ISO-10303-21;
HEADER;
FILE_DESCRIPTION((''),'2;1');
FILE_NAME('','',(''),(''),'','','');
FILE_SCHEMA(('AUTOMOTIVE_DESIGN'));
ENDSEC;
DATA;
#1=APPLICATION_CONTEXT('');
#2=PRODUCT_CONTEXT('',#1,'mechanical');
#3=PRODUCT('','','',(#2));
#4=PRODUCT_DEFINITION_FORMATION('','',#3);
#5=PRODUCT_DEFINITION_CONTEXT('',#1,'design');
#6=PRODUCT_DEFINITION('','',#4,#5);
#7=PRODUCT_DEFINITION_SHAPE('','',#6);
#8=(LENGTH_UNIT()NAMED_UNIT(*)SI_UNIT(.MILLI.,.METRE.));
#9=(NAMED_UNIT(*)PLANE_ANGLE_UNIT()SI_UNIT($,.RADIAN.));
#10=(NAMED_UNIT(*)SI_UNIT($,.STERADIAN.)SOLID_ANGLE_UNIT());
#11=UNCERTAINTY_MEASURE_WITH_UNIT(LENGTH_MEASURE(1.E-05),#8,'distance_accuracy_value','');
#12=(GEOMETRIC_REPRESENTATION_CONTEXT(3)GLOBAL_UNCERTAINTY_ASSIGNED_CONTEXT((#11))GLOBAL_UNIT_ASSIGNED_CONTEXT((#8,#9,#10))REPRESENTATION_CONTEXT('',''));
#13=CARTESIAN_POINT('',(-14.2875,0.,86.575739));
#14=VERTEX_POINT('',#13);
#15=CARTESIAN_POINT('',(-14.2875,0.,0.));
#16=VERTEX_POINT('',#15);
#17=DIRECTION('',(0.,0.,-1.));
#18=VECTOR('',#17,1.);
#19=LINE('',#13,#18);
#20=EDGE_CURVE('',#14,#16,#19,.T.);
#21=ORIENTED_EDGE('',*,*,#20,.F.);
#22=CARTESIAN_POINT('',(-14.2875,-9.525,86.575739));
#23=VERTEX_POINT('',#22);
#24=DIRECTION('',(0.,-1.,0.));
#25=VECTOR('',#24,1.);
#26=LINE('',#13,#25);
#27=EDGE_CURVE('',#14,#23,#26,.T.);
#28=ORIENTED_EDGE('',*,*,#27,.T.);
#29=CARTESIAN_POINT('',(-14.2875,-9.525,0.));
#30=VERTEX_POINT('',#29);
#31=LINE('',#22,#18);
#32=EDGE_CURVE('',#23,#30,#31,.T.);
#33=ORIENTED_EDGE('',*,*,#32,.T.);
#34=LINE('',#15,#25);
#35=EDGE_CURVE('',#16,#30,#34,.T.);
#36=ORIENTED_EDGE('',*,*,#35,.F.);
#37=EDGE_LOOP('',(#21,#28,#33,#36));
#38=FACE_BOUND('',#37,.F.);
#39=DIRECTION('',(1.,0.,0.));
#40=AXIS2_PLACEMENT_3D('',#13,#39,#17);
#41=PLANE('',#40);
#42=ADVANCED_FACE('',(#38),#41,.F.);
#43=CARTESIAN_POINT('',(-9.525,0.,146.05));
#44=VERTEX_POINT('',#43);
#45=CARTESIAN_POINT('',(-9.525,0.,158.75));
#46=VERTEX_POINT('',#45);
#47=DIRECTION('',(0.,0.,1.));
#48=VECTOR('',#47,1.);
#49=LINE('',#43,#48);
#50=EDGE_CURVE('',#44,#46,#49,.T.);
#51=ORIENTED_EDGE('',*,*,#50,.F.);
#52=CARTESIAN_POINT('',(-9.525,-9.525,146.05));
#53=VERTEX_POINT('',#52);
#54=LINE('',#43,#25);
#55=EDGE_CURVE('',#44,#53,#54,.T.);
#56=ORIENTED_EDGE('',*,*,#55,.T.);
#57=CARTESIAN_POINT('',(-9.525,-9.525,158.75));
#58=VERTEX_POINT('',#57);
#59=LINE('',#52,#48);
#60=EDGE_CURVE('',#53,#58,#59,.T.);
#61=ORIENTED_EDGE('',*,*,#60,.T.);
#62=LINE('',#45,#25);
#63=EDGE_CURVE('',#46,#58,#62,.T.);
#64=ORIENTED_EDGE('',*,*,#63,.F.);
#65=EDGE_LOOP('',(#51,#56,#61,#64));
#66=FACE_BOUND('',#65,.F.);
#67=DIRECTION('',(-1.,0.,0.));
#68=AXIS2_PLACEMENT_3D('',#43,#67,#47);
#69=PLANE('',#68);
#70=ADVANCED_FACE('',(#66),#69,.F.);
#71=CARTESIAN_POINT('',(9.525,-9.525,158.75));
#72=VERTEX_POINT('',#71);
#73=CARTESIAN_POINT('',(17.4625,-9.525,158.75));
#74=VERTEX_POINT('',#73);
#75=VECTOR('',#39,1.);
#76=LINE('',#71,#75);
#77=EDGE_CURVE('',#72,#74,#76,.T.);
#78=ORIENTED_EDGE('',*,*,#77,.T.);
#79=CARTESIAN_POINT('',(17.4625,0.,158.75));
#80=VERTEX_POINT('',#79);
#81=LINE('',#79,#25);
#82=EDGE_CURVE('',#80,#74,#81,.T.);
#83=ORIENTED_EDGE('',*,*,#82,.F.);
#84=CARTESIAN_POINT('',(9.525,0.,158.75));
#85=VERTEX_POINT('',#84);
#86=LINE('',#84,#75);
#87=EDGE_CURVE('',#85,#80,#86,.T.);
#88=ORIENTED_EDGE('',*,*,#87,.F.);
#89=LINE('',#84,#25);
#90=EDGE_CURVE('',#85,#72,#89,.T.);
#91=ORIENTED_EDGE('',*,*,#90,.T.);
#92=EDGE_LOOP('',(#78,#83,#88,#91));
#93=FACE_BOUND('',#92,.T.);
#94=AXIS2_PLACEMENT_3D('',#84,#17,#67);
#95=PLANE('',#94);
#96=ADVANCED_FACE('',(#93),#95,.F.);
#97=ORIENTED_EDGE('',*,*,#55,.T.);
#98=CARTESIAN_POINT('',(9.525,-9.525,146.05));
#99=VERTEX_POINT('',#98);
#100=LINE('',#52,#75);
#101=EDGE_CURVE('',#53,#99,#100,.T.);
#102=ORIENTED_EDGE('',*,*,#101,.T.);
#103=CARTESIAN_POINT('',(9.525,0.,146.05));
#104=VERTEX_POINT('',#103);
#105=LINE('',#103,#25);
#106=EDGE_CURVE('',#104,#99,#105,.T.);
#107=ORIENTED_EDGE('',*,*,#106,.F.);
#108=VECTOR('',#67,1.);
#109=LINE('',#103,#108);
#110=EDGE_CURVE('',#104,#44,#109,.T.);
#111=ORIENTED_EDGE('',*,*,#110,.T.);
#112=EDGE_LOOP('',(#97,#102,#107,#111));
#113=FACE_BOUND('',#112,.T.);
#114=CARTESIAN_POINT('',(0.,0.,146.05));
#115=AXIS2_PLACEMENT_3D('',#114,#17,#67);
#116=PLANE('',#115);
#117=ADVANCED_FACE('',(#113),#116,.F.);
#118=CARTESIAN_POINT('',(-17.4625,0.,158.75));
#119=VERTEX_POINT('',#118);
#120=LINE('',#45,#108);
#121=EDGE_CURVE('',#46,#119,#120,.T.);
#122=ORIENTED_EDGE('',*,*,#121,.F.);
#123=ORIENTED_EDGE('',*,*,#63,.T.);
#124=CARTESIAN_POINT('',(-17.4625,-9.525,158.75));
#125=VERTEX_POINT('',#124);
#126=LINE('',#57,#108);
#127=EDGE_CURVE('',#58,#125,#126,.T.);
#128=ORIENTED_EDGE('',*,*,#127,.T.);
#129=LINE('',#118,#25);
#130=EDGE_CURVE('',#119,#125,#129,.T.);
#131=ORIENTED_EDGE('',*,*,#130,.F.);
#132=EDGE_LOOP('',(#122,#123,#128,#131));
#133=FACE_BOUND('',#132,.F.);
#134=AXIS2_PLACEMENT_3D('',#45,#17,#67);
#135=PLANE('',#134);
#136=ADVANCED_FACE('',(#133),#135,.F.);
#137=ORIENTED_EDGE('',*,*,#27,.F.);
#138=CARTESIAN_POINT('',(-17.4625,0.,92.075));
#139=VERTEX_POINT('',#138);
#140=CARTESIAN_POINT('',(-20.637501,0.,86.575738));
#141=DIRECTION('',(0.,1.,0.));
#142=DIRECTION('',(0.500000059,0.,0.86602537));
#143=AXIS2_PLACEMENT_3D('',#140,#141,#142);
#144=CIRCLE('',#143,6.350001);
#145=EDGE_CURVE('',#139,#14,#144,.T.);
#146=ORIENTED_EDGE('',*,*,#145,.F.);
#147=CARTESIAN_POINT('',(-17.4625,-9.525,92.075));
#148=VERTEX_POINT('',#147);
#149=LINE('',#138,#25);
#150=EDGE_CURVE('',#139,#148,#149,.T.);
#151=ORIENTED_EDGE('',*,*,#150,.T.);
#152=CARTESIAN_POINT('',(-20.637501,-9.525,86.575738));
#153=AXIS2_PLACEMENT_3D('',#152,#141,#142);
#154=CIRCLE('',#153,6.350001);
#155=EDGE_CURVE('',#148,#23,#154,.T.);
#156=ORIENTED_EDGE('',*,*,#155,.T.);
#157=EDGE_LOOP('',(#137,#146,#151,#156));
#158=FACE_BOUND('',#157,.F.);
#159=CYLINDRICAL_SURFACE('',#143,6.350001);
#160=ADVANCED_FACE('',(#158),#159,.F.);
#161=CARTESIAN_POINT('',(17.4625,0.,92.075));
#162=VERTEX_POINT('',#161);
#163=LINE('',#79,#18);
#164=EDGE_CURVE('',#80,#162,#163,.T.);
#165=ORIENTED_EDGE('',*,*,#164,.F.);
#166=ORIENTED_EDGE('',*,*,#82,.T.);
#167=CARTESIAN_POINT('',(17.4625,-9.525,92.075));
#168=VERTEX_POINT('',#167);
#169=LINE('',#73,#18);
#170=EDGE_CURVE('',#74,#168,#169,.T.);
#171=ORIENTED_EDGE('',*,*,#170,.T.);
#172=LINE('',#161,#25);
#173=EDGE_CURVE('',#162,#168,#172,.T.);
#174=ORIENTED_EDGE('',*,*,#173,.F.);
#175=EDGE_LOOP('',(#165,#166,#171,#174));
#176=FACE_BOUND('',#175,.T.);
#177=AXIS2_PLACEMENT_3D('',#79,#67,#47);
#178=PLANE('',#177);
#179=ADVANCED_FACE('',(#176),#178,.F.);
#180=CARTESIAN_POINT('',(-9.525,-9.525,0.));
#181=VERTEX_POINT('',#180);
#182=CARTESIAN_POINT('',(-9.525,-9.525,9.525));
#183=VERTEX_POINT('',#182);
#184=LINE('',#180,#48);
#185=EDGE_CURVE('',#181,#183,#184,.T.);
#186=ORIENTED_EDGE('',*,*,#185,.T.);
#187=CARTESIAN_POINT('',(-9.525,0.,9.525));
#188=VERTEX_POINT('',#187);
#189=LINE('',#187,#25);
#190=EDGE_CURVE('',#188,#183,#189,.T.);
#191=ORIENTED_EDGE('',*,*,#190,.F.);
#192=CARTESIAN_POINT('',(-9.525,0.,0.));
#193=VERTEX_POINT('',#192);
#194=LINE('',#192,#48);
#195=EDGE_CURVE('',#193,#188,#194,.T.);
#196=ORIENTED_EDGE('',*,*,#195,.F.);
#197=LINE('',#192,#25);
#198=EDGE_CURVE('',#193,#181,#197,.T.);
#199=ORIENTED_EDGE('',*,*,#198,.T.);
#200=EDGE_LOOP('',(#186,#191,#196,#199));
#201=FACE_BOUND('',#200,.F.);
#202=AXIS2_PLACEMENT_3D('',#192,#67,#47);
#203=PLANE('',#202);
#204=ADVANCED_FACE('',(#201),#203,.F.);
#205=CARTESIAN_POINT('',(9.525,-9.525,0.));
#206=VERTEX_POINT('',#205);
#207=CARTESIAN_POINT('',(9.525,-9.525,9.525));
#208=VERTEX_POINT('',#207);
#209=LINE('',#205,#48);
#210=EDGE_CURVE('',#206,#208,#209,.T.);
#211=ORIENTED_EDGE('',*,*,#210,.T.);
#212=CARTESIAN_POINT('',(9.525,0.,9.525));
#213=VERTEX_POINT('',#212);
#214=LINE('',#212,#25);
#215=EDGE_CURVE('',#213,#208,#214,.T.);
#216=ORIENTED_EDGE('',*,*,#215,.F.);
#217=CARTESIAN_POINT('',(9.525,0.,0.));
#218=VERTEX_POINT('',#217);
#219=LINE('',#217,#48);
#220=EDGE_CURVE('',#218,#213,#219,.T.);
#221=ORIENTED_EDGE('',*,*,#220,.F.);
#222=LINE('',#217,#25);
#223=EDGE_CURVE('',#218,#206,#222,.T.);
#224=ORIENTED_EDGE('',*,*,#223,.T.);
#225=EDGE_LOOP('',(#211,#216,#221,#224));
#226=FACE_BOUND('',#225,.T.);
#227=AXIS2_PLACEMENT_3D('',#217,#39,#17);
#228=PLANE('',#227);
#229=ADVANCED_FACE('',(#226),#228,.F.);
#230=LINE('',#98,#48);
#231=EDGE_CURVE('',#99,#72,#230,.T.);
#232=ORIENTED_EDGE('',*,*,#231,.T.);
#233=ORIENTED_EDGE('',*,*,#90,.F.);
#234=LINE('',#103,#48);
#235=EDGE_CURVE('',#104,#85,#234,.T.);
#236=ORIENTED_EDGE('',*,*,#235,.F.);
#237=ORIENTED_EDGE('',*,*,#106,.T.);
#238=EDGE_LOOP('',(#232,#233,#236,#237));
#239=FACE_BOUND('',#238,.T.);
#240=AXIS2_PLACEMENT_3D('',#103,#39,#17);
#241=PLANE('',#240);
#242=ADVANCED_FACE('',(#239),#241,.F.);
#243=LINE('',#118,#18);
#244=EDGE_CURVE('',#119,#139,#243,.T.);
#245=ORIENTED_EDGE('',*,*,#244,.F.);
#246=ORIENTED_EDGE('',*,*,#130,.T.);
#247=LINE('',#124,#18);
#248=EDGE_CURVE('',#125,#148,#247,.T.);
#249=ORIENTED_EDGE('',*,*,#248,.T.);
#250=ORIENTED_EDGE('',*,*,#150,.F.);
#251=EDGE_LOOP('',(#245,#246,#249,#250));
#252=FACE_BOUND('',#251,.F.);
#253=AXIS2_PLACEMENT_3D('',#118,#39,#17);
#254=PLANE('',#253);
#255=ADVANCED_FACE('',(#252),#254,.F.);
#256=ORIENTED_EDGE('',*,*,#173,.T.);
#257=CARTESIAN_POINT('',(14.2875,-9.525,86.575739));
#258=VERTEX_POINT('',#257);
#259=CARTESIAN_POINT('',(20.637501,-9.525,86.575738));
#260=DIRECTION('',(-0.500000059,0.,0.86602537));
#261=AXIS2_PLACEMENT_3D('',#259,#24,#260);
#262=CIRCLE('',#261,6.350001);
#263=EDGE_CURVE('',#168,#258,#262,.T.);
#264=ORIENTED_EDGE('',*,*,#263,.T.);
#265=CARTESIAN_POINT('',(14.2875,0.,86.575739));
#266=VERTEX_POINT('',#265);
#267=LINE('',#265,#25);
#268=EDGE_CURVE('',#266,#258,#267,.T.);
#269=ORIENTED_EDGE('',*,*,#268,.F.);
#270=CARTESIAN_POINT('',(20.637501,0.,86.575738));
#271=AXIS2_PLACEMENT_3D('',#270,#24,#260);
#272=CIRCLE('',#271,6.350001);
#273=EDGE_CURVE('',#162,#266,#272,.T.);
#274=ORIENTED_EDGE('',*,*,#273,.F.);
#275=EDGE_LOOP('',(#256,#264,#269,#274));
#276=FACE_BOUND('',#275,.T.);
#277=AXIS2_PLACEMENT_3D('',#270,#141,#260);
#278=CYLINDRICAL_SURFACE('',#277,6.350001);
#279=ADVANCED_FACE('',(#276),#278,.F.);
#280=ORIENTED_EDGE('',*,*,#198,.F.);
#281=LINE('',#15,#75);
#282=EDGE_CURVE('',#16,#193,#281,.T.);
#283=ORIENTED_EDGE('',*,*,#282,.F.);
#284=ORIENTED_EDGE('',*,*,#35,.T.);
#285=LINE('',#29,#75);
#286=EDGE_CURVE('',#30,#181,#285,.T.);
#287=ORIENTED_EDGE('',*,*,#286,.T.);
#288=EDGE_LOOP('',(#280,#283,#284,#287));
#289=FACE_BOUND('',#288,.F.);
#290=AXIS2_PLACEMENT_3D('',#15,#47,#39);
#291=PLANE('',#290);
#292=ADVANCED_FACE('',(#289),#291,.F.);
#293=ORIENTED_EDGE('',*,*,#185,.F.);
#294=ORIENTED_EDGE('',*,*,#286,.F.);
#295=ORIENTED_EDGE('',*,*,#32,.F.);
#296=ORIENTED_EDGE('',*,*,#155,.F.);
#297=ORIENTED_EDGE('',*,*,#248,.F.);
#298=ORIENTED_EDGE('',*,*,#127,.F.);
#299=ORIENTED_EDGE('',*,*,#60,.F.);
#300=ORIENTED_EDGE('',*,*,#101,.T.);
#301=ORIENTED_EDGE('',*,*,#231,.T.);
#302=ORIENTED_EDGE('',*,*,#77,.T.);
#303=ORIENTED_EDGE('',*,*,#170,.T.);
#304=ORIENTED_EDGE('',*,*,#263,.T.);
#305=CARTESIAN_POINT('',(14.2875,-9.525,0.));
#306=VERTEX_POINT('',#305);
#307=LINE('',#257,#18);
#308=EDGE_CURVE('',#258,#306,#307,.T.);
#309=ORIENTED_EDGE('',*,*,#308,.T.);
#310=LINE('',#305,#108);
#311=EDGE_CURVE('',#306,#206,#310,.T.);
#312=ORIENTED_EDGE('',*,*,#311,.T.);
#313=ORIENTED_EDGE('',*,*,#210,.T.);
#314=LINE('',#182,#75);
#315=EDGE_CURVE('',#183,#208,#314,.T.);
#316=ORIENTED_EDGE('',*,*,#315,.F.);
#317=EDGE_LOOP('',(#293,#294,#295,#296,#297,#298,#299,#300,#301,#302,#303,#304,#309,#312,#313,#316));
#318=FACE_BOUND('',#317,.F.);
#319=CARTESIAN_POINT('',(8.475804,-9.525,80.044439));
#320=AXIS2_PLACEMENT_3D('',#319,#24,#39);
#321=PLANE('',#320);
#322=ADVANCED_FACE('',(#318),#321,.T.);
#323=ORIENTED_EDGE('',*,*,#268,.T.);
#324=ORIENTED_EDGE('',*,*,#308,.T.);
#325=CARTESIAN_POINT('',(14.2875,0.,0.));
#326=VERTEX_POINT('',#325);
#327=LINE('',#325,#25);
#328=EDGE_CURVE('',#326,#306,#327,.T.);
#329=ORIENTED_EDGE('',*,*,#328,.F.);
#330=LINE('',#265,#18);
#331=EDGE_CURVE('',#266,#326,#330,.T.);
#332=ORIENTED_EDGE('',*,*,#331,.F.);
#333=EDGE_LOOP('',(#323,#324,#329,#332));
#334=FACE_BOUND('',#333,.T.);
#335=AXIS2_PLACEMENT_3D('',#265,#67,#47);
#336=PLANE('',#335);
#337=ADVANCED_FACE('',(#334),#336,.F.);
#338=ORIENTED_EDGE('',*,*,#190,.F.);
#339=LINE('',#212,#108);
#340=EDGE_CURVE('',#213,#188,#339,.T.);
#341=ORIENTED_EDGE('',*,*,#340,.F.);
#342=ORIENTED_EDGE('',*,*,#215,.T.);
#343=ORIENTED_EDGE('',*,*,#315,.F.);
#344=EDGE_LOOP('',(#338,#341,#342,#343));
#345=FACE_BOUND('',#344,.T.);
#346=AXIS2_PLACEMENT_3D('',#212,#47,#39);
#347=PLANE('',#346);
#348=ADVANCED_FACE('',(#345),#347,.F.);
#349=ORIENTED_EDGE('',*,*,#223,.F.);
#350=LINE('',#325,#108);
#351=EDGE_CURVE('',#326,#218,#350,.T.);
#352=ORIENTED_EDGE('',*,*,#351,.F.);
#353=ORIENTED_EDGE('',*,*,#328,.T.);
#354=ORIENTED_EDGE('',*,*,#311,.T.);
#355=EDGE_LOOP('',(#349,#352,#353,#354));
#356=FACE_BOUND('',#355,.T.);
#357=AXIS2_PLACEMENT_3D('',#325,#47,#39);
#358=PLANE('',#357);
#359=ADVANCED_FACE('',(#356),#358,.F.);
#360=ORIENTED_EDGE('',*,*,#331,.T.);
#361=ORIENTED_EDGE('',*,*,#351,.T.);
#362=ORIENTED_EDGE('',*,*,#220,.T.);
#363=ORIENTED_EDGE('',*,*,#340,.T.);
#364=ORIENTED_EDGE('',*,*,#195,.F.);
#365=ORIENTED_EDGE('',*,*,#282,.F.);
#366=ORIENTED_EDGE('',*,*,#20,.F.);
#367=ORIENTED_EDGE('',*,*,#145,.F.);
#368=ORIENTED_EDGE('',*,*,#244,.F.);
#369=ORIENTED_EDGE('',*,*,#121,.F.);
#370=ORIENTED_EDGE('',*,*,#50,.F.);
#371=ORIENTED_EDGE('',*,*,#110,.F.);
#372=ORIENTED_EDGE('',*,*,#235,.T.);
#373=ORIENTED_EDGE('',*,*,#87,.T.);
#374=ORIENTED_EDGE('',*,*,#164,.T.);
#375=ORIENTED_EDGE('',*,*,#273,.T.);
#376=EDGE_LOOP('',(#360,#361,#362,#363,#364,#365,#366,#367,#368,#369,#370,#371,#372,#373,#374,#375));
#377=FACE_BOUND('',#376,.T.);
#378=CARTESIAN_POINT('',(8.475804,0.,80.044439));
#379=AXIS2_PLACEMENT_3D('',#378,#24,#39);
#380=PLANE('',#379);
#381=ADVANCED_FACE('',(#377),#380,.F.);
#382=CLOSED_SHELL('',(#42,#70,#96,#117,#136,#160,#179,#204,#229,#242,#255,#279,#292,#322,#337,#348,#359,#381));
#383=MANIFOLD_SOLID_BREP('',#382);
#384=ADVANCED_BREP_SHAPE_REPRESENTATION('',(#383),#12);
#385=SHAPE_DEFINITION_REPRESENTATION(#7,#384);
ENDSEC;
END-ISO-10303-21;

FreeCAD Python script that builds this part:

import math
import FreeCAD as App
import Part
import Sketcher

V = App.Vector
Q = App.Units.Quantity

doc = App.newDocument("Part")
params = doc.addObject("Spreadsheet::Sheet", "Params")
for row, (alias, value) in enumerate([
    ("sketch1_radius", "0.25 in"),
    ("sketch1_height", "0.5 in"),
    ("sketch1_width", "0.3125 in"),
    ("sketch1_width2", "0.1875 in"),
    ("sketch1_width3", "0.375 in"),
    ("pad1_length", "0.375 in"),
], start=1):
    params.set(f"A{row}", alias)
    params.set(f"B{row}", "=" + value)
    params.setAlias(f"B{row}", alias)

body = doc.addObject("PartDesign::Body", "Body")

# Sketch on XZ plane
sketch1 = body.newObject("Sketcher::SketchObject", "Sketch")
sketch1.AttachmentSupport = (doc.getObject("XZ_Plane"), [""])
sketch1.MapMode = "FlatFace"
sketch1.addGeometry([
    Part.LineSegment(V(-9.525, 146.05, 0), V(-9.525, 158.75, 0)),  # 0
    Part.LineSegment(V(-9.525, 158.75, 0), V(-17.4625, 158.75, 0)),  # 1
    Part.LineSegment(V(-17.4625, 158.75, 0), V(-17.4625, 92.075, 0)),  # 2
    Part.ArcOfCircle(Part.Circle(V(-20.637501, 86.575738, 0), V(0, 0, 1), 6.350001), math.radians(0.000007), math.radians(59.999996)),  # 3
    Part.LineSegment(V(-14.2875, 86.575739, 0), V(-14.2875, 0, 0)),  # 4
    Part.LineSegment(V(-14.2875, 0, 0), V(-9.525, 0, 0)),  # 5
    Part.LineSegment(V(-9.525, 0, 0), V(-9.525, 9.525, 0)),  # 6
    Part.LineSegment(V(-9.525, 9.525, 0), V(0, 9.525, 0)),  # 7
    Part.LineSegment(V(0, 9.525, 0), V(0, 146.05, 0)),  # 8
    Part.LineSegment(V(0, 146.05, 0), V(-9.525, 146.05, 0)),  # 9
], False)
sketch1.addConstraint([
    Sketcher.Constraint("Coincident", 0, 2, 1, 1),
    Sketcher.Constraint("Coincident", 1, 2, 2, 1),
    Sketcher.Constraint("Coincident", 2, 2, 3, 2),
    Sketcher.Constraint("Tangent", 3, 1, 4, 1),
    Sketcher.Constraint("Coincident", 4, 2, 5, 1),
    Sketcher.Constraint("Coincident", 5, 2, 6, 1),
    Sketcher.Constraint("Coincident", 6, 2, 7, 1),
    Sketcher.Constraint("Coincident", 7, 2, 8, 1),
    Sketcher.Constraint("Coincident", 8, 2, 9, 1),
    Sketcher.Constraint("Coincident", 9, 2, 0, 1),
    Sketcher.Constraint("Vertical", 0),
    Sketcher.Constraint("Horizontal", 1),
    Sketcher.Constraint("Vertical", 2),
    Sketcher.Constraint("Vertical", 4),
    Sketcher.Constraint("Horizontal", 5),
    Sketcher.Constraint("Vertical", 6),
    Sketcher.Constraint("Horizontal", 7),
    Sketcher.Constraint("Vertical", 8),
    Sketcher.Constraint("Horizontal", 9),
    Sketcher.Constraint("PointOnObject", 4, 2, -1),
    Sketcher.Constraint("PointOnObject", 7, 2, -2),
    Sketcher.Constraint("Vertical", 0, 2, 5, 2),
    Sketcher.Constraint("Equal", 9, 6),
    Sketcher.Constraint("Radius", 3, Q("0.25 in")),
    Sketcher.Constraint("DistanceY", 0, 1, 0, 2, Q("0.5 in")),
    Sketcher.Constraint("DistanceX", 1, 2, 1, 1, Q("0.3125 in")),
    Sketcher.Constraint("DistanceX", 5, 1, 5, 2, Q("0.1875 in")),
    Sketcher.Constraint("DistanceX", 7, 1, 7, 2, Q("0.375 in")),
    Sketcher.Constraint("DistanceY", 2, 2, 2, 1, Q("2.625 in")),
    Sketcher.Constraint("DistanceY", 8, 1, 8, 2, Q("5.375 in")),
])
sketch1.setExpression("Constraints[23]", "Params.sketch1_radius")
sketch1.setExpression("Constraints[24]", "Params.sketch1_height")
sketch1.setExpression("Constraints[25]", "Params.sketch1_width")
sketch1.setExpression("Constraints[26]", "Params.sketch1_width2")
sketch1.setExpression("Constraints[27]", "Params.sketch1_width3")
pad1 = body.newObject("PartDesign::Pad", "Pad")
pad1.Profile = sketch1
pad1.setExpression("Length", "Params.pad1_length")
body2 = doc.addObject("PartDesign::Body", "Body001")
doc.recompute()

body2.BaseFeature = body
doc.recompute()

mirroring = doc.addObject("Part::Mirroring", "Mirroring")
mirroring.Source = body
mirroring.Base = V(0, 0, 0)
mirroring.Normal = V(1, 0, 0)
body3 = doc.addObject("PartDesign::Body", "Body002")
body3.BaseFeature = mirroring
boolean = body2.newObject("PartDesign::Boolean", "Boolean")
boolean.Type = "Fuse"
boolean.addObjects([body3])
doc.recompute()
mirroring.Visibility = False

doc.recompute()
